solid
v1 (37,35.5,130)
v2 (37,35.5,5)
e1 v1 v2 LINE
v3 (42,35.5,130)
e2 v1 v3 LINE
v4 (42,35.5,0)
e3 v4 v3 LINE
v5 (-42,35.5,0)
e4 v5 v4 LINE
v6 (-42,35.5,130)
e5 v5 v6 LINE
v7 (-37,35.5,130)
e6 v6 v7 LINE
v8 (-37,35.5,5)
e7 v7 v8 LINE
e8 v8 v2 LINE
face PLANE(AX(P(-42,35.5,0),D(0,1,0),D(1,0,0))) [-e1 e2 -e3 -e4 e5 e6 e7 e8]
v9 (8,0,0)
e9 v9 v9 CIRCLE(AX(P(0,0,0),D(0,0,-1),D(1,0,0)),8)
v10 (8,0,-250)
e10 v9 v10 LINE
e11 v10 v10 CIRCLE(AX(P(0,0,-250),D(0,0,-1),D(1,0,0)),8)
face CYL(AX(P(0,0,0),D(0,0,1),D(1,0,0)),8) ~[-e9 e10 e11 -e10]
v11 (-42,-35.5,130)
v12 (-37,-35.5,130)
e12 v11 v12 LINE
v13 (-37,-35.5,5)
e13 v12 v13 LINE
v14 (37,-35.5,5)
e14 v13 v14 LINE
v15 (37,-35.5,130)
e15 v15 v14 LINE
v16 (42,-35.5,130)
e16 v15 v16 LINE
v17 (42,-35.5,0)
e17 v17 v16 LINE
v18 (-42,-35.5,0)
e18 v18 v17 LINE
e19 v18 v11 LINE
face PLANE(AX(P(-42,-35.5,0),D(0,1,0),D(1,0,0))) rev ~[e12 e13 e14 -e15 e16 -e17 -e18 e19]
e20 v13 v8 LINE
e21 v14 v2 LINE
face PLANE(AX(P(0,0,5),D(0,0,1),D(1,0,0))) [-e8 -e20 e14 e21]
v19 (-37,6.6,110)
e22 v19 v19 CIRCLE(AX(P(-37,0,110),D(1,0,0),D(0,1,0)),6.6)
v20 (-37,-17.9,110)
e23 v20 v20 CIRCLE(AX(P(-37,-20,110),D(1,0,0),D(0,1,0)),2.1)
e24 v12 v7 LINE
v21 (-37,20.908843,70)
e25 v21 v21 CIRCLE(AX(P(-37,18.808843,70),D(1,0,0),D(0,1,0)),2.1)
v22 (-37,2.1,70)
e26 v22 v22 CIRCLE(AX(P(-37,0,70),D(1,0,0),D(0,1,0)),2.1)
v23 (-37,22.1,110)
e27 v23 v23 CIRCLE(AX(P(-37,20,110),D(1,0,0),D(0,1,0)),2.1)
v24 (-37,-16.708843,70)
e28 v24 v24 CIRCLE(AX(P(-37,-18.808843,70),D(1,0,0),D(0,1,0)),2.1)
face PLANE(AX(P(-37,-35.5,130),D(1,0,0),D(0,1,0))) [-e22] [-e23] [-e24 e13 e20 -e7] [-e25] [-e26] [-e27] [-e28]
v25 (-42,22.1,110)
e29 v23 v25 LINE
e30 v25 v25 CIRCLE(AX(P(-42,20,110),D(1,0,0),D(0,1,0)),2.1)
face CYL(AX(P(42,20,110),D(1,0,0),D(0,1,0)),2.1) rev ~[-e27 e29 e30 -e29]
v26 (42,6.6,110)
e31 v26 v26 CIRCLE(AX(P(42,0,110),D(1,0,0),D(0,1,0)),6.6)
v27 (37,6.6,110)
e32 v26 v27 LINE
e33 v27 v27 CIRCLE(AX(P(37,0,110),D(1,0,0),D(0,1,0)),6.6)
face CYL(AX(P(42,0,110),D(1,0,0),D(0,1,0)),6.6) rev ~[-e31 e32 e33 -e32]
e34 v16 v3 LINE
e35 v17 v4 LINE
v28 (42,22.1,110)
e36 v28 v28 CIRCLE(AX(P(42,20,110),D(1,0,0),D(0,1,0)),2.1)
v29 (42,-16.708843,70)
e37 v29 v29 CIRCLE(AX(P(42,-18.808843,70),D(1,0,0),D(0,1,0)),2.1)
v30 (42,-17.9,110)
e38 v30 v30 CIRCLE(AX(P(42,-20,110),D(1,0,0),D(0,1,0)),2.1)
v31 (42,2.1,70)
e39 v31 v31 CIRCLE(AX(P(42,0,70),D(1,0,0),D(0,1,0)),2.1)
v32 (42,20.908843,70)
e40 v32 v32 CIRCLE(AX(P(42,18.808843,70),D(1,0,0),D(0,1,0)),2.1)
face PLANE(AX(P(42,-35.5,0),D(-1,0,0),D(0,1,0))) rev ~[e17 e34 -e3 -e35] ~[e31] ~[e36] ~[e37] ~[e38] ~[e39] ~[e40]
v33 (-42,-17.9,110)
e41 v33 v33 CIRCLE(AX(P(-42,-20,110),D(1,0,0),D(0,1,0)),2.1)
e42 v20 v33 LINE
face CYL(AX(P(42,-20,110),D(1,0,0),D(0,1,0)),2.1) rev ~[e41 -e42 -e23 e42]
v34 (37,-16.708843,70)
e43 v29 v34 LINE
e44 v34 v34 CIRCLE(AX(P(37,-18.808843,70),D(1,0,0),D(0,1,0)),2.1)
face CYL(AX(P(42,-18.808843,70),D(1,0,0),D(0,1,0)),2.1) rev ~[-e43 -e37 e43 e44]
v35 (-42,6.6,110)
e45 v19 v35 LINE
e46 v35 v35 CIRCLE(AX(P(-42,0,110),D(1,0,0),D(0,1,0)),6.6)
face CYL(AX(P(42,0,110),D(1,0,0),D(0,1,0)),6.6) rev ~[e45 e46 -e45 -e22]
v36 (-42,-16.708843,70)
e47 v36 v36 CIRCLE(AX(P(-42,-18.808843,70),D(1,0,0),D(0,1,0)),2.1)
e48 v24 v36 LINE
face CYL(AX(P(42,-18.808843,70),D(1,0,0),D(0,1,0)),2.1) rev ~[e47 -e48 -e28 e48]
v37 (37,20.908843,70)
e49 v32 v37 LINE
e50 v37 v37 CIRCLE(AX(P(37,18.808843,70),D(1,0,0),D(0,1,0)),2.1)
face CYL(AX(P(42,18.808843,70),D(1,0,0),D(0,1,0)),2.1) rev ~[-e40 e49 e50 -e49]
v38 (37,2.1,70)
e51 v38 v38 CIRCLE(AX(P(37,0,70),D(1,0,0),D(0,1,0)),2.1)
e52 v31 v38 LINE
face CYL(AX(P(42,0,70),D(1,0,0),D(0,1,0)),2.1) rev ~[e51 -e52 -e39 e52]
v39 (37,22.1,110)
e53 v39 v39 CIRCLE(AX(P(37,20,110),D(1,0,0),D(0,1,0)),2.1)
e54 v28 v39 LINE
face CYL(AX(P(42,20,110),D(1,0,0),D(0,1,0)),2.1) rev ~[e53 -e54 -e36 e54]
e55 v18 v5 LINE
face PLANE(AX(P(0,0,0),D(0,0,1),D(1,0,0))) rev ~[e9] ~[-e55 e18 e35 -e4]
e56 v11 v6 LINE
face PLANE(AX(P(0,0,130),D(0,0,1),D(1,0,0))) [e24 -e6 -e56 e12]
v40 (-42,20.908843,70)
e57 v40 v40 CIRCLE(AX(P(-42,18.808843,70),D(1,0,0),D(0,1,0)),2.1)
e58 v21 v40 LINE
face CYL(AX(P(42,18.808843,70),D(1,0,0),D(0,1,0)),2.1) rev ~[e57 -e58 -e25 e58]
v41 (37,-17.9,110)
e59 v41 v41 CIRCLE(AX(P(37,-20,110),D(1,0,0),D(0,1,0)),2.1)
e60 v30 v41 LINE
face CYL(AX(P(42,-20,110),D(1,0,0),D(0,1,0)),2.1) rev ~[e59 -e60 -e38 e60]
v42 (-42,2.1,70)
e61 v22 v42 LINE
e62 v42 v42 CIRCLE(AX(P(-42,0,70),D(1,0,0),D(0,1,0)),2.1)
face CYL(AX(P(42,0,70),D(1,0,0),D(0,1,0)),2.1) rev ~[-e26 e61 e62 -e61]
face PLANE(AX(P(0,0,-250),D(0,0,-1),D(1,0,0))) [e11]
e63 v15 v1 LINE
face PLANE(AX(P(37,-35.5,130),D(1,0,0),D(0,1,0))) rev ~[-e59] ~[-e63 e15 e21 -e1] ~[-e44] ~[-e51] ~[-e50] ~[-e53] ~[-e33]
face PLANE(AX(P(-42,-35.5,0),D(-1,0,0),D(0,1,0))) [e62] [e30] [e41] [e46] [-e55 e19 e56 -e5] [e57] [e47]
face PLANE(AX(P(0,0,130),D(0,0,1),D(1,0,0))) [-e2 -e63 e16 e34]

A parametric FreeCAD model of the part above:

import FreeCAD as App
import Part
import Sketcher

V = App.Vector
Q = App.Units.Quantity


def add_polygon(sketch, points):
    """Adds a closed chain of lines whose ends are joined by coincident constraints."""
    first, n = sketch.GeometryCount, len(points)
    for a, b in zip(points, points[1:] + points[:1]):
        sketch.addGeometry(Part.LineSegment(App.Vector(*a, 0), App.Vector(*b, 0)), False)
    for i in range(n):
        sketch.addConstraint(Sketcher.Constraint("Coincident", first + i, 2, first + (i + 1) % n, 1))

doc = App.newDocument("Part")
params = doc.addObject("Spreadsheet::Sheet", "Params")
for row, (alias, value) in enumerate([
    ("sketch1_width", "84 mm"),
    ("sketch1_height", "71 mm"),
    ("pad1_length", "130 mm"),
    ("sketch2_width", "74 mm"),
    ("sketch2_height", "71 mm"),
    ("pocket1_length", "125 mm"),
    ("sketch3_diameter", "16 mm"),
    ("pad2_length", "250 mm"),
    ("sketch4_diameter", "4.2 mm"),
    ("sketch4_diameter2", "13.2 mm"),
], start=1):
    params.set(f"A{row}", alias)
    params.set(f"B{row}", "=" + value)
    params.setAlias(f"B{row}", alias)

body = doc.addObject("PartDesign::Body", "Body")

sketch1 = doc.addObject("Sketcher::SketchObject", "Sketch")
body.addObject(sketch1)
sketch1.AttachmentSupport = (doc.XY_Plane, [""])
sketch1.MapMode = "FlatFace"
add_polygon(sketch1, [(-42, 36), (-42, -36), (42, -36), (42, 36)])
sketch1.addConstraint(Sketcher.Constraint("Vertical", 0))
sketch1.addConstraint(Sketcher.Constraint("Horizontal", 1))
sketch1.addConstraint(Sketcher.Constraint("Vertical", 2))
sketch1.addConstraint(Sketcher.Constraint("Horizontal", 3))
sketch1.addConstraint(Sketcher.Constraint("Symmetric", 0, 2, 2, 2, -1, 1))
sketch1.addConstraint(Sketcher.Constraint("DistanceX", 1, 1, 1, 2, Q("84 mm")))
sketch1.addConstraint(Sketcher.Constraint("DistanceY", 0, 2, 0, 1, Q("71 mm")))
sketch1.setExpression("Constraints[9]", "Params.sketch1_width")
sketch1.setExpression("Constraints[10]", "Params.sketch1_height")
pad1 = doc.addObject("PartDesign::Pad", "Pad")
body.addObject(pad1)
pad1.Profile = sketch1
pad1.setExpression("Length", "Params.pad1_length")

sketch2 = doc.addObject("Sketcher::SketchObject", "Sketch001")
body.addObject(sketch2)
sketch2.AttachmentSupport = (doc.XY_Plane, [""])
sketch2.MapMode = "FlatFace"
sketch2.AttachmentOffset = App.Placement(V(0, 0, 130), App.Rotation())
add_polygon(sketch2, [(-37, 36), (-37, -36), (37, -36), (37, 36)])
sketch2.addConstraint(Sketcher.Constraint("Vertical", 0))
sketch2.addConstraint(Sketcher.Constraint("Horizontal", 1))
sketch2.addConstraint(Sketcher.Constraint("Vertical", 2))
sketch2.addConstraint(Sketcher.Constraint("Horizontal", 3))
sketch2.addConstraint(Sketcher.Constraint("Symmetric", 0, 2, 2, 2, -1, 1))
sketch2.addConstraint(Sketcher.Constraint("DistanceX", 1, 1, 1, 2, Q("74 mm")))
sketch2.addConstraint(Sketcher.Constraint("DistanceY", 0, 2, 0, 1, Q("71 mm")))
sketch2.setExpression("Constraints[9]", "Params.sketch2_width")
sketch2.setExpression("Constraints[10]", "Params.sketch2_height")
pocket1 = doc.addObject("PartDesign::Pocket", "Pocket")
body.addObject(pocket1)
pocket1.Profile = sketch2
pocket1.setExpression("Length", "Params.pocket1_length")

sketch3 = doc.addObject("Sketcher::SketchObject", "Sketch002")
body.addObject(sketch3)
sketch3.AttachmentSupport = (doc.XY_Plane, [""])
sketch3.MapMode = "FlatFace"
sketch3.addGeometry(Part.Circle(V(0, 0, 0), V(0, 0, 1), 8), False)
sketch3.addConstraint(Sketcher.Constraint("Coincident", 0, 3, -1, 1))
sketch3.addConstraint(Sketcher.Constraint("Diameter", 0, Q("16 mm")))
sketch3.setExpression("Constraints[1]", "Params.sketch3_diameter")
pad2 = doc.addObject("PartDesign::Pad", "Pad001")
body.addObject(pad2)
pad2.Profile = sketch3
pad2.setExpression("Length", "Params.pad2_length")
pad2.Reversed = True

sketch4 = doc.addObject("Sketcher::SketchObject", "Sketch003")
body.addObject(sketch4)
sketch4.AttachmentSupport = (doc.YZ_Plane, [""])
sketch4.MapMode = "FlatFace"
sketch4.AttachmentOffset = App.Placement(V(0, 0, 42), App.Rotation())
sketch4.addGeometry(Part.Circle(V(-20, 110, 0), V(0, 0, 1), 2.1), False)
sketch4.addGeometry(Part.Circle(V(20, 110, 0), V(0, 0, 1), 2.1), False)
sketch4.addGeometry(Part.Circle(V(0, 110, 0), V(0, 0, 1), 6.6), False)
sketch4.addGeometry(Part.Circle(V(0, 70, 0), V(0, 0, 1), 2.1), False)
sketch4.addGeometry(Part.Circle(V(-18.8, 70, 0), V(0, 0, 1), 2.1), False)
sketch4.addGeometry(Part.Circle(V(18.8, 70, 0), V(0, 0, 1), 2.1), False)
sketch4.addConstraint(Sketcher.Constraint("Equal", 0, 1))
sketch4.addConstraint(Sketcher.Constraint("Equal", 1, 3))
sketch4.addConstraint(Sketcher.Constraint("Equal", 3, 4))
sketch4.addConstraint(Sketcher.Constraint("Equal", 4, 5))
sketch4.addConstraint(Sketcher.Constraint("Symmetric", 0, 3, 1, 3, -2))
sketch4.addConstraint(Sketcher.Constraint("Symmetric", 4, 3, 5, 3, -2))
sketch4.addConstraint(Sketcher.Constraint("PointOnObject", 2, 3, -2))
sketch4.addConstraint(Sketcher.Constraint("PointOnObject", 3, 3, -2))
sketch4.addConstraint(Sketcher.Constraint("Horizontal", 1, 3, 2, 3))
sketch4.addConstraint(Sketcher.Constraint("Horizontal", 3, 3, 4, 3))
sketch4.addConstraint(Sketcher.Constraint("Diameter", 0, Q("4.2 mm")))
sketch4.addConstraint(Sketcher.Constraint("Diameter", 2, Q("13.2 mm")))
sketch4.addConstraint(Sketcher.Constraint("DistanceX", 0, 3, -1, 1, Q("20 mm")))
sketch4.addConstraint(Sketcher.Constraint("DistanceY", -1, 1, 0, 3, Q("110 mm")))
sketch4.addConstraint(Sketcher.Constraint("DistanceY", -1, 1, 3, 3, Q("70 mm")))
sketch4.addConstraint(Sketcher.Constraint("DistanceX", 4, 3, -1, 1, Q("18.808843 mm")))
sketch4.setExpression("Constraints[10]", "Params.sketch4_diameter")
sketch4.setExpression("Constraints[11]", "Params.sketch4_diameter2")
pocket2 = doc.addObject("PartDesign::Pocket", "Pocket001")
body.addObject(pocket2)
pocket2.Profile = sketch4
pocket2.Type = "ThroughAll"

doc.recompute()
